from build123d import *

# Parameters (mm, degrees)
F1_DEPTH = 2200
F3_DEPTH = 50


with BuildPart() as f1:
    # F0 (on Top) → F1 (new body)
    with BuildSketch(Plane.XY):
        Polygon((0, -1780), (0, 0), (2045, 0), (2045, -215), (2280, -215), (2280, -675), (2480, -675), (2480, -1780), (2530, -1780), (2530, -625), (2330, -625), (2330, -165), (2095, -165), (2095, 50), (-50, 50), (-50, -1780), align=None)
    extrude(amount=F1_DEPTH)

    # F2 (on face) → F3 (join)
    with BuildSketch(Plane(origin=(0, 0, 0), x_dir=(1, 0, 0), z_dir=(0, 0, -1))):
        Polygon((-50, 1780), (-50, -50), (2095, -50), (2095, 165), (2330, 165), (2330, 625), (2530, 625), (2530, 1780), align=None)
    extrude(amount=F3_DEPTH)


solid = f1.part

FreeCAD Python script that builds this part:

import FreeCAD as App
import Part
import Sketcher

V = App.Vector

doc = App.newDocument("Part")
body = doc.addObject("PartDesign::Body", "Body")

# Sketch on XY plane
sketch1 = body.newObject("Sketcher::SketchObject", "Sketch")
sketch1.AttachmentSupport = (doc.getObject("XY_Plane"), [""])
sketch1.MapMode = "FlatFace"
sketch1.addGeometry(Part.LineSegment(V(0, -1780, 0), V(0, 0, 0)), False)
sketch1.addGeometry(Part.LineSegment(V(0, 0, 0), V(2045, 0, 0)), False)
sketch1.addGeometry(Part.LineSegment(V(2045, 0, 0), V(2045, -215, 0)), False)
sketch1.addGeometry(Part.LineSegment(V(2045, -215, 0), V(2280, -215, 0)), False)
sketch1.addGeometry(Part.LineSegment(V(2280, -215, 0), V(2280, -675, 0)), False)
sketch1.addGeometry(Part.LineSegment(V(2280, -675, 0), V(2480, -675, 0)), False)
sketch1.addGeometry(Part.LineSegment(V(2480, -675, 0), V(2480, -1780, 0)), False)
sketch1.addGeometry(Part.LineSegment(V(2480, -1780, 0), V(2530, -1780, 0)), False)
sketch1.addGeometry(Part.LineSegment(V(2530, -1780, 0), V(2530, -625, 0)), False)
sketch1.addGeometry(Part.LineSegment(V(2530, -625, 0), V(2330, -625, 0)), False)
sketch1.addGeometry(Part.LineSegment(V(2330, -625, 0), V(2330, -165, 0)), False)
sketch1.addGeometry(Part.LineSegment(V(2330, -165, 0), V(2095, -165, 0)), False)
sketch1.addGeometry(Part.LineSegment(V(2095, -165, 0), V(2095, 50, 0)), False)
sketch1.addGeometry(Part.LineSegment(V(2095, 50, 0), V(-50, 50, 0)), False)
sketch1.addGeometry(Part.LineSegment(V(-50, 50, 0), V(-50, -1780, 0)), False)
sketch1.addGeometry(Part.LineSegment(V(-50, -1780, 0), V(0, -1780, 0)), False)
sketch1.addConstraint(Sketcher.Constraint("Coincident", 0, 2, 1, 1))
sketch1.addConstraint(Sketcher.Constraint("Coincident", 1, 2, 2, 1))
sketch1.addConstraint(Sketcher.Constraint("Coincident", 2, 2, 3, 1))
sketch1.addConstraint(Sketcher.Constraint("Coincident", 3, 2, 4, 1))
sketch1.addConstraint(Sketcher.Constraint("Coincident", 4, 2, 5, 1))
sketch1.addConstraint(Sketcher.Constraint("Coincident", 5, 2, 6, 1))
sketch1.addConstraint(Sketcher.Constraint("Coincident", 6, 2, 7, 1))
sketch1.addConstraint(Sketcher.Constraint("Coincident", 7, 2, 8, 1))
sketch1.addConstraint(Sketcher.Constraint("Coincident", 8, 2, 9, 1))
sketch1.addConstraint(Sketcher.Constraint("Coincident", 9, 2, 10, 1))
sketch1.addConstraint(Sketcher.Constraint("Coincident", 10, 2, 11, 1))
sketch1.addConstraint(Sketcher.Constraint("Coincident", 11, 2, 12, 1))
sketch1.addConstraint(Sketcher.Constraint("Coincident", 12, 2, 13, 1))
sketch1.addConstraint(Sketcher.Constraint("Coincident", 13, 2, 14, 1))
sketch1.addConstraint(Sketcher.Constraint("Coincident", 14, 2, 15, 1))
sketch1.addConstraint(Sketcher.Constraint("Coincident", 15, 2, 0, 1))
sketch1.addConstraint(Sketcher.Constraint("Vertical", 0))
sketch1.addConstraint(Sketcher.Constraint("Horizontal", 1))
sketch1.addConstraint(Sketcher.Constraint("Vertical", 2))
sketch1.addConstraint(Sketcher.Constraint("Horizontal", 3))
sketch1.addConstraint(Sketcher.Constraint("Vertical", 4))
sketch1.addConstraint(Sketcher.Constraint("Horizontal", 5))
sketch1.addConstraint(Sketcher.Constraint("Vertical", 6))
sketch1.addConstraint(Sketcher.Constraint("Horizontal", 7))
sketch1.addConstraint(Sketcher.Constraint("Vertical", 8))
sketch1.addConstraint(Sketcher.Constraint("Horizontal", 9))
sketch1.addConstraint(Sketcher.Constraint("Vertical", 10))
sketch1.addConstraint(Sketcher.Constraint("Horizontal", 11))
sketch1.addConstraint(Sketcher.Constraint("Vertical", 12))
sketch1.addConstraint(Sketcher.Constraint("Horizontal", 13))
sketch1.addConstraint(Sketcher.Constraint("Vertical", 14))
sketch1.addConstraint(Sketcher.Constraint("Horizontal", 15))
sketch1.addConstraint(Sketcher.Constraint("Coincident", 0, 2, -1, 1))
sketch1.addConstraint(Sketcher.Constraint("Horizontal", 7, 2, 14, 2))
sketch1.addConstraint(Sketcher.Constraint("Equal", 5, 9))
sketch1.addConstraint(Sketcher.Constraint("Equal", 3, 11))
sketch1.addConstraint(Sketcher.Constraint("Equal", 7, 15))
sketch1.addConstraint(Sketcher.Constraint("Equal", 4, 10))
sketch1.addConstraint(Sketcher.Constraint("Equal", 2, 12))
sketch1.addConstraint(Sketcher.Constraint("DistanceX", 1, 1, 1, 2, 2045.0))
sketch1.addConstraint(Sketcher.Constraint("DistanceX", 3, 1, 3, 2, 235.0))
sketch1.addConstraint(Sketcher.Constraint("DistanceX", 5, 1, 5, 2, 200.0))
sketch1.addConstraint(Sketcher.Constraint("DistanceX", 7, 1, 7, 2, 50.0))
sketch1.addConstraint(Sketcher.Constraint("DistanceY", 0, 1, 0, 2, 1780.0))
sketch1.addConstraint(Sketcher.Constraint("DistanceY", 2, 2, 2, 1, 215.0))
sketch1.addConstraint(Sketcher.Constraint("DistanceY", 4, 2, 4, 1, 460.0))
sketch1.addConstraint(Sketcher.Constraint("DistanceY", 8, 1, 8, 2, 1155.0))
pad1 = body.newObject("PartDesign::Pad", "Pad")
pad1.Profile = sketch1
pad1.Length = 2200

# Sketch on XY plane
sketch2 = body.newObject("Sketcher::SketchObject", "Sketch001")
sketch2.AttachmentSupport = (doc.getObject("XY_Plane"), [""])
sketch2.MapMode = "FlatFace"
sketch2.addGeometry(Part.LineSegment(V(-50, -1780, 0), V(-50, 50, 0)), False)
sketch2.addGeometry(Part.LineSegment(V(-50, 50, 0), V(2095, 50, 0)), False)
sketch2.addGeometry(Part.LineSegment(V(2095, 50, 0), V(2095, -165, 0)), False)
sketch2.addGeometry(Part.LineSegment(V(2095, -165, 0), V(2330, -165, 0)), False)
sketch2.addGeometry(Part.LineSegment(V(2330, -165, 0), V(2330, -625, 0)), False)
sketch2.addGeometry(Part.LineSegment(V(2330, -625, 0), V(2530, -625, 0)), False)
sketch2.addGeometry(Part.LineSegment(V(2530, -625, 0), V(2530, -1780, 0)), False)
sketch2.addGeometry(Part.LineSegment(V(2530, -1780, 0), V(-50, -1780, 0)), False)
sketch2.addConstraint(Sketcher.Constraint("Coincident", 0, 2, 1, 1))
sketch2.addConstraint(Sketcher.Constraint("Coincident", 1, 2, 2, 1))
sketch2.addConstraint(Sketcher.Constraint("Coincident", 2, 2, 3, 1))
sketch2.addConstraint(Sketcher.Constraint("Coincident", 3, 2, 4, 1))
sketch2.addConstraint(Sketcher.Constraint("Coincident", 4, 2, 5, 1))
sketch2.addConstraint(Sketcher.Constraint("Coincident", 5, 2, 6, 1))
sketch2.addConstraint(Sketcher.Constraint("Coincident", 6, 2, 7, 1))
sketch2.addConstraint(Sketcher.Constraint("Coincident", 7, 2, 0, 1))
sketch2.addConstraint(Sketcher.Constraint("Vertical", 0))
sketch2.addConstraint(Sketcher.Constraint("Horizontal", 1))
sketch2.addConstraint(Sketcher.Constraint("Vertical", 2))
sketch2.addConstraint(Sketcher.Constraint("Horizontal", 3))
sketch2.addConstraint(Sketcher.Constraint("Vertical", 4))
sketch2.addConstraint(Sketcher.Constraint("Horizontal", 5))
sketch2.addConstraint(Sketcher.Constraint("Vertical", 6))
sketch2.addConstraint(Sketcher.Constraint("Horizontal", 7))
sketch2.addConstraint(Sketcher.Constraint("DistanceX", 1, 1, 1, 2, 2145.0))
sketch2.addConstraint(Sketcher.Constraint("DistanceX", 3, 1, 3, 2, 235.0))
sketch2.addConstraint(Sketcher.Constraint("DistanceX", 5, 1, 5, 2, 200.0))
sketch2.addConstraint(Sketcher.Constraint("DistanceY", 0, 1, 0, 2, 1830.0))
sketch2.addConstraint(Sketcher.Constraint("DistanceY", 2, 2, 2, 1, 215.0))
sketch2.addConstraint(Sketcher.Constraint("DistanceY", 4, 2, 4, 1, 460.0))
sketch2.addConstraint(Sketcher.Constraint("DistanceX", 0, 2, -1, 1, 50.0))
sketch2.addConstraint(Sketcher.Constraint("DistanceY", -1, 1, 0, 2, 50.0))
pad2 = body.newObject("PartDesign::Pad", "Pad001")
pad2.Profile = sketch2
pad2.Length = 50
pad2.Reversed = True

doc.recompute()
